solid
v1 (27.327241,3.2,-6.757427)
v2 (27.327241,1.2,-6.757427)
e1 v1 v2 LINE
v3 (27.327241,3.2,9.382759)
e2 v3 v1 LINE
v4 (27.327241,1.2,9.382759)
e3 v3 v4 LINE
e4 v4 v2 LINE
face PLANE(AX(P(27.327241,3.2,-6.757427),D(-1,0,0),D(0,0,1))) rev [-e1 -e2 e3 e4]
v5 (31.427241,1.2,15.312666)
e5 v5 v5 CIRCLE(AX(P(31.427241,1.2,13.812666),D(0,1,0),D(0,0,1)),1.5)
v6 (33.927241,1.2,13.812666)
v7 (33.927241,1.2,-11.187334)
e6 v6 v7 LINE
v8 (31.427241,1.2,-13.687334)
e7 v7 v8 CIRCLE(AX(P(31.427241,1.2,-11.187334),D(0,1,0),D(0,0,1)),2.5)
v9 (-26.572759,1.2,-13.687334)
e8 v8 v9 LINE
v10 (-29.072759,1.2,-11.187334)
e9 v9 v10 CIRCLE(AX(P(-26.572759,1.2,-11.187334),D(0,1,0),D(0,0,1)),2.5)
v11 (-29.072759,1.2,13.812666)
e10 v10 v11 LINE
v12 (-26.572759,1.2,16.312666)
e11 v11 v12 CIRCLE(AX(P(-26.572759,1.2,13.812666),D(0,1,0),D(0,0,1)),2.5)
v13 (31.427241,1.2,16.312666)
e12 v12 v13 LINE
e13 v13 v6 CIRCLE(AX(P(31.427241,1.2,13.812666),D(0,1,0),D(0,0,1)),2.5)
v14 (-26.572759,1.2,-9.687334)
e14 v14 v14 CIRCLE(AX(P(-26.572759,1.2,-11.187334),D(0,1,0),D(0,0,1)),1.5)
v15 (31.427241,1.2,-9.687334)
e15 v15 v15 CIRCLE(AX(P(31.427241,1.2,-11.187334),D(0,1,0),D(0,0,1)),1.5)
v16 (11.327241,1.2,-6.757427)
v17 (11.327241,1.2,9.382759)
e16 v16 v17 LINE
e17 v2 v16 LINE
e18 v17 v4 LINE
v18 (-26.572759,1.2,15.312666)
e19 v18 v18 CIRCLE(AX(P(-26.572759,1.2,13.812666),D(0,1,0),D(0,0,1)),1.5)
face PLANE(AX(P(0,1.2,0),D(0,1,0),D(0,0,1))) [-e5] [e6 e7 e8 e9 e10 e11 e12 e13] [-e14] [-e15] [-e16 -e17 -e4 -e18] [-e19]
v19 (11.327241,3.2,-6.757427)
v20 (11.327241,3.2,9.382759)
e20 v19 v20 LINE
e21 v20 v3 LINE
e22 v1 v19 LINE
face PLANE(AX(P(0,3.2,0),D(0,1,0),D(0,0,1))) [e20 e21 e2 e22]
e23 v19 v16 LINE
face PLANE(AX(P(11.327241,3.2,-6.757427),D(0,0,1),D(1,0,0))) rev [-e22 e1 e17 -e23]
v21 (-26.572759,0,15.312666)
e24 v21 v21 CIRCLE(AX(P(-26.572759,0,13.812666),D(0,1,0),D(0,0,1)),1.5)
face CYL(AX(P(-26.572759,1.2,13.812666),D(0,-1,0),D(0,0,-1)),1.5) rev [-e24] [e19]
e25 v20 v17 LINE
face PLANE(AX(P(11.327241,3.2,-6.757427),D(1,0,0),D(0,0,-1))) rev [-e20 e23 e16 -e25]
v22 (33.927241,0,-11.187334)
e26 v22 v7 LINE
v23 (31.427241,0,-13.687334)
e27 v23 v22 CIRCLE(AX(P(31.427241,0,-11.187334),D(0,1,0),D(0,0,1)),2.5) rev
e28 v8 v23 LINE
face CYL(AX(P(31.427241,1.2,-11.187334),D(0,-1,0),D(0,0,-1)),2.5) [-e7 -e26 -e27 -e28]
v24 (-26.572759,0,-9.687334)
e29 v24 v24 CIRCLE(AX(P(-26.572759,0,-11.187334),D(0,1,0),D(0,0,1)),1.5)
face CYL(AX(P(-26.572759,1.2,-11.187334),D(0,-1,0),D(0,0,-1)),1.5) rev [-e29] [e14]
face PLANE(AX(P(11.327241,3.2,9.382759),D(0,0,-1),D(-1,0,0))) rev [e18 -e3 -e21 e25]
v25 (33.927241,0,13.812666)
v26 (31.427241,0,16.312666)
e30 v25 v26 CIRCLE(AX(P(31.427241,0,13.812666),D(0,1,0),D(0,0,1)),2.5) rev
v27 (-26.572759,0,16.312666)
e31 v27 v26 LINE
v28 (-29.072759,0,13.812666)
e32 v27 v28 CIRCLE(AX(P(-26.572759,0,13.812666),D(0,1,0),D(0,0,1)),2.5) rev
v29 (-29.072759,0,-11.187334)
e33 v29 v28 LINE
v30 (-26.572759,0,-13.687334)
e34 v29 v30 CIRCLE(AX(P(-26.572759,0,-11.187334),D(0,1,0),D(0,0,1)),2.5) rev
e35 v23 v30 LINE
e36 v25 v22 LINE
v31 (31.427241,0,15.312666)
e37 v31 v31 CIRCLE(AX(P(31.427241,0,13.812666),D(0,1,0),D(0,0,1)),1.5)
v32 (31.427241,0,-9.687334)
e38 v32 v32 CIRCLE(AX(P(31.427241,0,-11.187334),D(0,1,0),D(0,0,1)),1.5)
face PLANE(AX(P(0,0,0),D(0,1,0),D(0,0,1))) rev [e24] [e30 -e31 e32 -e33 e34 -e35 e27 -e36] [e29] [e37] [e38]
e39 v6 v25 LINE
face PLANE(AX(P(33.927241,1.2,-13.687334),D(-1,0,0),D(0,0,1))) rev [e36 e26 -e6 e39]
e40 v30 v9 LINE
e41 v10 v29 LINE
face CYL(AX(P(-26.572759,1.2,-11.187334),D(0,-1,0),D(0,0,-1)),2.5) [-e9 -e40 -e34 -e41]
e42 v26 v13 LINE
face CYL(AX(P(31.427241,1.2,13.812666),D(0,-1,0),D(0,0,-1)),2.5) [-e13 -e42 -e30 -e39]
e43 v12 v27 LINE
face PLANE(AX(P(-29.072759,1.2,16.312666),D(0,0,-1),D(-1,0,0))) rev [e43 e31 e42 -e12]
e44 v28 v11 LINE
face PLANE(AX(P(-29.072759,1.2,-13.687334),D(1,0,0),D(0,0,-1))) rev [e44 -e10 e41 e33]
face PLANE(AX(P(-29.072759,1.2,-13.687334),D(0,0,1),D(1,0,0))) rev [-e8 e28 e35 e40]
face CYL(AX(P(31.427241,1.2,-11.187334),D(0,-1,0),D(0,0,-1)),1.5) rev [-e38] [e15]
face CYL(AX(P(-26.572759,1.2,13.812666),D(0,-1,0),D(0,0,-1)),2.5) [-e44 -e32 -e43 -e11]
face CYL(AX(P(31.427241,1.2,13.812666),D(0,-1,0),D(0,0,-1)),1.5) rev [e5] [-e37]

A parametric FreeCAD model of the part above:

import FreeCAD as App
import Part
import Sketcher
from FreeCAD import Vector


def edges_at(feature, points):
    """Names of the edges that pass closest to the given points."""
    edges = feature.Shape.Edges
    near = lambda p: min(range(len(edges)), key=lambda i: edges[i].distToShape(Part.Vertex(*p))[0])
    return sorted({f"Edge{near(p) + 1}" for p in points})


def add_polygon(sketch, points):
    """Adds a closed chain of lines whose ends are joined by coincident constraints."""
    first, n = sketch.GeometryCount, len(points)
    for a, b in zip(points, points[1:] + points[:1]):
        sketch.addGeometry(Part.LineSegment(App.Vector(*a, 0), App.Vector(*b, 0)), False)
    for i in range(n):
        sketch.addConstraint(Sketcher.Constraint("Coincident", first + i, 2, first + (i + 1) % n, 1))

doc = App.newDocument("Part")
body = doc.addObject("PartDesign::Body", "Body")

sketch1 = body.newObject("Sketcher::SketchObject", "Sketch")
sketch1.AttachmentSupport = (doc.getObject("XZ_Plane"), [""])
sketch1.MapMode = "FlatFace"
add_polygon(sketch1, [(-29.1, -13.7), (-29.1, 16.3), (33.9, 16.3), (33.9, -13.7)])
sketch1.addGeometry(Part.Circle(Vector(-26.6, 13.8, 0), Vector(0, 0, 1), 1.5), False)
sketch1.addGeometry(Part.Circle(Vector(31.4, 13.8, 0), Vector(0, 0, 1), 1.5), False)
sketch1.addGeometry(Part.Circle(Vector(-26.6, -11.2, 0), Vector(0, 0, 1), 1.5), False)
sketch1.addGeometry(Part.Circle(Vector(31.4, -11.2, 0), Vector(0, 0, 1), 1.5), False)
sketch1.addConstraint([
    Sketcher.Constraint("Vertical", 0),
    Sketcher.Constraint("Horizontal", 1),
    Sketcher.Constraint("Vertical", 2),
    Sketcher.Constraint("Horizontal", 3),
    Sketcher.Constraint("Equal", 4, 5),
    Sketcher.Constraint("Equal", 5, 6),
    Sketcher.Constraint("Equal", 6, 7),
    Sketcher.Constraint("Horizontal", 4, 3, 5, 3),
    Sketcher.Constraint("Horizontal", 6, 3, 7, 3),
    Sketcher.Constraint("Vertical", 4, 3, 6, 3),
    Sketcher.Constraint("Vertical", 5, 3, 7, 3),
    Sketcher.Constraint("Diameter", 4, 3.0),
    Sketcher.Constraint("DistanceX", 1, 1, 1, 2, 63.0),
    Sketcher.Constraint("DistanceY", 0, 1, 0, 2, 30.0),
    Sketcher.Constraint("DistanceX", 4, 3, 5, 3, 58.0),
    Sketcher.Constraint("DistanceY", 6, 3, 4, 3, 25.0),
    Sketcher.Constraint("DistanceX", 0, 2, 4, 3, 2.5),
    Sketcher.Constraint("DistanceY", 4, 3, 0, 2, 2.5),
    Sketcher.Constraint("DistanceX", 4, 3, -1, 1, 26.572759),
    Sketcher.Constraint("DistanceY", -1, 1, 4, 3, 13.812666),
])
pad1 = body.newObject("PartDesign::Pad", "Pad")
pad1.Profile = sketch1
pad1.Length = 1.2
pad1.Reversed = True
doc.recompute()

fillet = body.newObject("PartDesign::Fillet", "Fillet")
fillet.Base = (pad1, edges_at(pad1, [
    (-29.073, 0.6, -13.687),
    (33.927, 0.6, -13.687),
    (33.927, 0.6, 16.313),
    (-29.073, 0.6, 16.313),
]))
fillet.Radius = 2.5

sketch2 = body.newObject("Sketcher::SketchObject", "Sketch001")
sketch2.AttachmentSupport = (doc.getObject("XZ_Plane"), [""])
sketch2.MapMode = "FlatFace"
sketch2.AttachmentOffset = App.Placement(Vector(0, 0, -1.2), App.Rotation())
add_polygon(sketch2, [(11, -7), (11, 9), (27, 9), (27, -7)])
sketch2.addConstraint([
    Sketcher.Constraint("Vertical", 0),
    Sketcher.Constraint("Horizontal", 1),
    Sketcher.Constraint("Vertical", 2),
    Sketcher.Constraint("Horizontal", 3),
    Sketcher.Constraint("DistanceX", 1, 1, 1, 2, 16.0),
    Sketcher.Constraint("DistanceY", 0, 1, 0, 2, 16.140186),
    Sketcher.Constraint("DistanceX", -1, 1, 0, 2, 11.327241),
    Sketcher.Constraint("DistanceY", -1, 1, 0, 2, 9.382759),
])
pad2 = body.newObject("PartDesign::Pad", "Pad001")
pad2.Profile = sketch2
pad2.Length = 2
pad2.Reversed = True

doc.recompute()
